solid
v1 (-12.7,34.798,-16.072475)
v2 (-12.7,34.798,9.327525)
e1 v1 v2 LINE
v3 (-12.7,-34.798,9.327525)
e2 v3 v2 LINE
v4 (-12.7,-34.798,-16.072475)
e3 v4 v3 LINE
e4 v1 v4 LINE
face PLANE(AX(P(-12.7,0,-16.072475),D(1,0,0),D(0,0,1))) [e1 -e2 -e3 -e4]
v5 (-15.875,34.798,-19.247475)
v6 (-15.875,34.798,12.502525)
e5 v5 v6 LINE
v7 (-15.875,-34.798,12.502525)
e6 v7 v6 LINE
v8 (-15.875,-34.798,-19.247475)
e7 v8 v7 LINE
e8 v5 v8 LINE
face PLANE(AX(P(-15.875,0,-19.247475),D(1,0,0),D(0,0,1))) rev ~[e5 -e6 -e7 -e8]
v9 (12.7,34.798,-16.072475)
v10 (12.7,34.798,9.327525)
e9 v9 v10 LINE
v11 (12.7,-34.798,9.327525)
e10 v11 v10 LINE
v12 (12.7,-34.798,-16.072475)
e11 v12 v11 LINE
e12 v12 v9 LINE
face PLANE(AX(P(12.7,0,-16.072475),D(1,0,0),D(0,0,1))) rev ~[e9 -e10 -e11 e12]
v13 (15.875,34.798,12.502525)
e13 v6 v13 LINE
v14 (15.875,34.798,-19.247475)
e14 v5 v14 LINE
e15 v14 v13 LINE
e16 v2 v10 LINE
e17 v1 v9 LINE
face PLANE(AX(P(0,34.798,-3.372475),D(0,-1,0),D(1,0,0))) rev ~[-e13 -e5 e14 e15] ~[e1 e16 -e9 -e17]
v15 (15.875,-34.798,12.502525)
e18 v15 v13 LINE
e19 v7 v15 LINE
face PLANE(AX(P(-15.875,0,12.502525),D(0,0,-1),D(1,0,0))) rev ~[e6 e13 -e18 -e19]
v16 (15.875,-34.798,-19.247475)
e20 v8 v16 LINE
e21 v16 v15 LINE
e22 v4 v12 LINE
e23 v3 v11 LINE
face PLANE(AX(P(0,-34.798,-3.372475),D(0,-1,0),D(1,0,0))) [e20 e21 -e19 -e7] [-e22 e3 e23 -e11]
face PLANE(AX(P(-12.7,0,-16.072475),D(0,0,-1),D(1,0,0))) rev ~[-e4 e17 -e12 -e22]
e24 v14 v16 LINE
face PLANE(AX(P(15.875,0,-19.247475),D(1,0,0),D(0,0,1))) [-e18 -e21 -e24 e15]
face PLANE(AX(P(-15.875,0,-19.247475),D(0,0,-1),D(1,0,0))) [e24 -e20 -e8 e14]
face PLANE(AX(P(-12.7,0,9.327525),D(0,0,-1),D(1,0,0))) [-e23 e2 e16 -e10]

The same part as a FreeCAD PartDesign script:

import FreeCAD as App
import Part
import Sketcher
from FreeCAD import Vector
Q = App.Units.Quantity

doc = App.newDocument("Part")
body = doc.addObject("PartDesign::Body", "Body")

# Sketch on XZ plane
sketch1 = body.newObject("Sketcher::SketchObject", "Sketch")
sketch1.AttachmentSupport = (doc.getObject("XZ_Plane"), [""])
sketch1.MapMode = "FlatFace"
sketch1.addGeometry([
    Part.LineSegment(Vector(-16, 13, 0), Vector(-16, -19, 0)),  # 0
    Part.LineSegment(Vector(-16, -19, 0), Vector(16, -19, 0)),  # 1
    Part.LineSegment(Vector(16, -19, 0), Vector(16, 13, 0)),  # 2
    Part.LineSegment(Vector(16, 13, 0), Vector(-16, 13, 0)),  # 3
    Part.LineSegment(Vector(13, -16, 0), Vector(-13, -16, 0)),  # 4
    Part.LineSegment(Vector(-13, -16, 0), Vector(-13, 9, 0)),  # 5
    Part.LineSegment(Vector(-13, 9, 0), Vector(13, 9, 0)),  # 6
    Part.LineSegment(Vector(13, 9, 0), Vector(13, -16, 0)),  # 7
], False)
sketch1.addConstraint([
    Sketcher.Constraint("Coincident", 0, 2, 1, 1),
    Sketcher.Constraint("Coincident", 1, 2, 2, 1),
    Sketcher.Constraint("Coincident", 2, 2, 3, 1),
    Sketcher.Constraint("Coincident", 3, 2, 0, 1),
    Sketcher.Constraint("Coincident", 4, 2, 5, 1),
    Sketcher.Constraint("Coincident", 5, 2, 6, 1),
    Sketcher.Constraint("Coincident", 6, 2, 7, 1),
    Sketcher.Constraint("Coincident", 7, 2, 4, 1),
    Sketcher.Constraint("Vertical", 0),
    Sketcher.Constraint("Horizontal", 1),
    Sketcher.Constraint("Vertical", 2),
    Sketcher.Constraint("Horizontal", 3),
    Sketcher.Constraint("Horizontal", 4),
    Sketcher.Constraint("Vertical", 5),
    Sketcher.Constraint("Horizontal", 6),
    Sketcher.Constraint("Vertical", 7),
    Sketcher.Constraint("Equal", 3, 0),
    Sketcher.Constraint("Equal", 6, 5),
    Sketcher.Constraint("DistanceX", 4, 2, 4, 1, Q("1 in")),
    Sketcher.Constraint("DistanceX", 1, 1, 1, 2, Q("1.25 in")),
    Sketcher.Constraint("DistanceX", 4, 2, -1, 1, Q("0.5 in")),
    Sketcher.Constraint("DistanceX", 0, 2, -1, 1, Q("0.625 in")),
    Sketcher.Constraint("DistanceY", 0, 2, 4, 2, Q("0.125 in")),
    Sketcher.Constraint("DistanceY", 0, 2, -1, 1, Q("19.247475 mm")),
])
pad1 = body.newObject("PartDesign::Pad", "Pad")
pad1.Profile = sketch1
pad1.Length = Q("2.74 in")
pad1.Midplane = True

doc.recompute()
